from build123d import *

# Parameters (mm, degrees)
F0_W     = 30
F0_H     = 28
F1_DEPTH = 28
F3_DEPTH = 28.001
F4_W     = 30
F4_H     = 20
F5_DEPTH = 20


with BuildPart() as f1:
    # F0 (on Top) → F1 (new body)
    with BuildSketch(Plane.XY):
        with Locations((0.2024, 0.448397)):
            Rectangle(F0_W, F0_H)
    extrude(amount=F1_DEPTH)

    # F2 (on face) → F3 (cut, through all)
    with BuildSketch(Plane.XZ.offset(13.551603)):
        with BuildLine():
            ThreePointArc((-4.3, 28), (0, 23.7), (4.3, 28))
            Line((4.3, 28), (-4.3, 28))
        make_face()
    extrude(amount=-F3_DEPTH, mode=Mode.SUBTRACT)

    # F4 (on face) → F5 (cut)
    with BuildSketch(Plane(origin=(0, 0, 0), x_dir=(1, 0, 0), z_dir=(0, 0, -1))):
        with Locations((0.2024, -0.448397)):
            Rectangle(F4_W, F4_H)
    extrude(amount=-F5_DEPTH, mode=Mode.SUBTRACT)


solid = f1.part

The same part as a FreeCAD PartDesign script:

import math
import FreeCAD as App
import Part
import Sketcher

V = App.Vector


def add_polygon(sketch, points):
    """Adds a closed chain of lines whose ends are joined by coincident constraints."""
    first, n = sketch.GeometryCount, len(points)
    for a, b in zip(points, points[1:] + points[:1]):
        sketch.addGeometry(Part.LineSegment(App.Vector(*a, 0), App.Vector(*b, 0)), False)
    for i in range(n):
        sketch.addConstraint(Sketcher.Constraint("Coincident", first + i, 2, first + (i + 1) % n, 1))

doc = App.newDocument("Part")
body = doc.addObject("PartDesign::Body", "Body")

sketch1 = doc.addObject("Sketcher::SketchObject", "Sketch")
body.addObject(sketch1)
sketch1.AttachmentSupport = (doc.XY_Plane, [""])
sketch1.MapMode = "FlatFace"
add_polygon(sketch1, [(-14.7976, 14.448397), (-14.7976, -13.551603), (15.2024, -13.551603), (15.2024, 14.448397)])
sketch1.addConstraint(Sketcher.Constraint("Vertical", 0))
sketch1.addConstraint(Sketcher.Constraint("Horizontal", 1))
sketch1.addConstraint(Sketcher.Constraint("Vertical", 2))
sketch1.addConstraint(Sketcher.Constraint("Horizontal", 3))
sketch1.addConstraint(Sketcher.Constraint("DistanceX", 1, 1, 1, 2, 30.0))
sketch1.addConstraint(Sketcher.Constraint("DistanceY", 0, 2, 0, 1, 28.0))
sketch1.addConstraint(Sketcher.Constraint("DistanceX", 0, 2, -1, 1, 14.7976))
sketch1.addConstraint(Sketcher.Constraint("DistanceY", 0, 2, -1, 1, 13.551603))
pad1 = doc.addObject("PartDesign::Pad", "Pad")
body.addObject(pad1)
pad1.Profile = sketch1
pad1.Length = 28

sketch2 = doc.addObject("Sketcher::SketchObject", "Sketch001")
body.addObject(sketch2)
sketch2.AttachmentSupport = (doc.XZ_Plane, [""])
sketch2.MapMode = "FlatFace"
sketch2.AttachmentOffset = App.Placement(V(0, 0, 13.551603), App.Rotation())
sketch2.addGeometry(Part.ArcOfCircle(Part.Circle(V(0, 28, 0), V(0, 0, 1), 4.3), math.radians(180), math.radians(360)), False)
sketch2.addGeometry(Part.LineSegment(V(4.3, 28, 0), V(-4.3, 28, 0)), False)
sketch2.addConstraint(Sketcher.Constraint("Coincident", 0, 1, 1, 2))
sketch2.addConstraint(Sketcher.Constraint("Coincident", 1, 1, 0, 2))
sketch2.addConstraint(Sketcher.Constraint("Horizontal", 1))
sketch2.addConstraint(Sketcher.Constraint("PointOnObject", 0, 3, -2))
sketch2.addConstraint(Sketcher.Constraint("Radius", 0, 4.3))
sketch2.addConstraint(Sketcher.Constraint("DistanceY", -1, 1, 0, 3, 28.0))
sketch2.addConstraint(Sketcher.Constraint("DistanceY", -1, 1, 0, 1, 28.0))
pocket1 = doc.addObject("PartDesign::Pocket", "Pocket")
body.addObject(pocket1)
pocket1.Profile = sketch2
pocket1.Type = "ThroughAll"

sketch3 = doc.addObject("Sketcher::SketchObject", "Sketch002")
body.addObject(sketch3)
sketch3.AttachmentSupport = (doc.XY_Plane, [""])
sketch3.MapMode = "FlatFace"
add_polygon(sketch3, [(-14.7976, -9.551603), (-14.7976, 10.448397), (15.2024, 10.448397), (15.2024, -9.551603)])
sketch3.addConstraint(Sketcher.Constraint("Vertical", 0))
sketch3.addConstraint(Sketcher.Constraint("Horizontal", 1))
sketch3.addConstraint(Sketcher.Constraint("Vertical", 2))
sketch3.addConstraint(Sketcher.Constraint("Horizontal", 3))
sketch3.addConstraint(Sketcher.Constraint("DistanceX", 1, 1, 1, 2, 30.0))
sketch3.addConstraint(Sketcher.Constraint("DistanceY", 0, 1, 0, 2, 20.0))
sketch3.addConstraint(Sketcher.Constraint("DistanceX", 0, 2, -1, 1, 14.7976))
sketch3.addConstraint(Sketcher.Constraint("DistanceY", -1, 1, 0, 2, 10.448397))
pocket2 = doc.addObject("PartDesign::Pocket", "Pocket001")
body.addObject(pocket2)
pocket2.Profile = sketch3
pocket2.Length = 20
pocket2.Reversed = True

doc.recompute()
